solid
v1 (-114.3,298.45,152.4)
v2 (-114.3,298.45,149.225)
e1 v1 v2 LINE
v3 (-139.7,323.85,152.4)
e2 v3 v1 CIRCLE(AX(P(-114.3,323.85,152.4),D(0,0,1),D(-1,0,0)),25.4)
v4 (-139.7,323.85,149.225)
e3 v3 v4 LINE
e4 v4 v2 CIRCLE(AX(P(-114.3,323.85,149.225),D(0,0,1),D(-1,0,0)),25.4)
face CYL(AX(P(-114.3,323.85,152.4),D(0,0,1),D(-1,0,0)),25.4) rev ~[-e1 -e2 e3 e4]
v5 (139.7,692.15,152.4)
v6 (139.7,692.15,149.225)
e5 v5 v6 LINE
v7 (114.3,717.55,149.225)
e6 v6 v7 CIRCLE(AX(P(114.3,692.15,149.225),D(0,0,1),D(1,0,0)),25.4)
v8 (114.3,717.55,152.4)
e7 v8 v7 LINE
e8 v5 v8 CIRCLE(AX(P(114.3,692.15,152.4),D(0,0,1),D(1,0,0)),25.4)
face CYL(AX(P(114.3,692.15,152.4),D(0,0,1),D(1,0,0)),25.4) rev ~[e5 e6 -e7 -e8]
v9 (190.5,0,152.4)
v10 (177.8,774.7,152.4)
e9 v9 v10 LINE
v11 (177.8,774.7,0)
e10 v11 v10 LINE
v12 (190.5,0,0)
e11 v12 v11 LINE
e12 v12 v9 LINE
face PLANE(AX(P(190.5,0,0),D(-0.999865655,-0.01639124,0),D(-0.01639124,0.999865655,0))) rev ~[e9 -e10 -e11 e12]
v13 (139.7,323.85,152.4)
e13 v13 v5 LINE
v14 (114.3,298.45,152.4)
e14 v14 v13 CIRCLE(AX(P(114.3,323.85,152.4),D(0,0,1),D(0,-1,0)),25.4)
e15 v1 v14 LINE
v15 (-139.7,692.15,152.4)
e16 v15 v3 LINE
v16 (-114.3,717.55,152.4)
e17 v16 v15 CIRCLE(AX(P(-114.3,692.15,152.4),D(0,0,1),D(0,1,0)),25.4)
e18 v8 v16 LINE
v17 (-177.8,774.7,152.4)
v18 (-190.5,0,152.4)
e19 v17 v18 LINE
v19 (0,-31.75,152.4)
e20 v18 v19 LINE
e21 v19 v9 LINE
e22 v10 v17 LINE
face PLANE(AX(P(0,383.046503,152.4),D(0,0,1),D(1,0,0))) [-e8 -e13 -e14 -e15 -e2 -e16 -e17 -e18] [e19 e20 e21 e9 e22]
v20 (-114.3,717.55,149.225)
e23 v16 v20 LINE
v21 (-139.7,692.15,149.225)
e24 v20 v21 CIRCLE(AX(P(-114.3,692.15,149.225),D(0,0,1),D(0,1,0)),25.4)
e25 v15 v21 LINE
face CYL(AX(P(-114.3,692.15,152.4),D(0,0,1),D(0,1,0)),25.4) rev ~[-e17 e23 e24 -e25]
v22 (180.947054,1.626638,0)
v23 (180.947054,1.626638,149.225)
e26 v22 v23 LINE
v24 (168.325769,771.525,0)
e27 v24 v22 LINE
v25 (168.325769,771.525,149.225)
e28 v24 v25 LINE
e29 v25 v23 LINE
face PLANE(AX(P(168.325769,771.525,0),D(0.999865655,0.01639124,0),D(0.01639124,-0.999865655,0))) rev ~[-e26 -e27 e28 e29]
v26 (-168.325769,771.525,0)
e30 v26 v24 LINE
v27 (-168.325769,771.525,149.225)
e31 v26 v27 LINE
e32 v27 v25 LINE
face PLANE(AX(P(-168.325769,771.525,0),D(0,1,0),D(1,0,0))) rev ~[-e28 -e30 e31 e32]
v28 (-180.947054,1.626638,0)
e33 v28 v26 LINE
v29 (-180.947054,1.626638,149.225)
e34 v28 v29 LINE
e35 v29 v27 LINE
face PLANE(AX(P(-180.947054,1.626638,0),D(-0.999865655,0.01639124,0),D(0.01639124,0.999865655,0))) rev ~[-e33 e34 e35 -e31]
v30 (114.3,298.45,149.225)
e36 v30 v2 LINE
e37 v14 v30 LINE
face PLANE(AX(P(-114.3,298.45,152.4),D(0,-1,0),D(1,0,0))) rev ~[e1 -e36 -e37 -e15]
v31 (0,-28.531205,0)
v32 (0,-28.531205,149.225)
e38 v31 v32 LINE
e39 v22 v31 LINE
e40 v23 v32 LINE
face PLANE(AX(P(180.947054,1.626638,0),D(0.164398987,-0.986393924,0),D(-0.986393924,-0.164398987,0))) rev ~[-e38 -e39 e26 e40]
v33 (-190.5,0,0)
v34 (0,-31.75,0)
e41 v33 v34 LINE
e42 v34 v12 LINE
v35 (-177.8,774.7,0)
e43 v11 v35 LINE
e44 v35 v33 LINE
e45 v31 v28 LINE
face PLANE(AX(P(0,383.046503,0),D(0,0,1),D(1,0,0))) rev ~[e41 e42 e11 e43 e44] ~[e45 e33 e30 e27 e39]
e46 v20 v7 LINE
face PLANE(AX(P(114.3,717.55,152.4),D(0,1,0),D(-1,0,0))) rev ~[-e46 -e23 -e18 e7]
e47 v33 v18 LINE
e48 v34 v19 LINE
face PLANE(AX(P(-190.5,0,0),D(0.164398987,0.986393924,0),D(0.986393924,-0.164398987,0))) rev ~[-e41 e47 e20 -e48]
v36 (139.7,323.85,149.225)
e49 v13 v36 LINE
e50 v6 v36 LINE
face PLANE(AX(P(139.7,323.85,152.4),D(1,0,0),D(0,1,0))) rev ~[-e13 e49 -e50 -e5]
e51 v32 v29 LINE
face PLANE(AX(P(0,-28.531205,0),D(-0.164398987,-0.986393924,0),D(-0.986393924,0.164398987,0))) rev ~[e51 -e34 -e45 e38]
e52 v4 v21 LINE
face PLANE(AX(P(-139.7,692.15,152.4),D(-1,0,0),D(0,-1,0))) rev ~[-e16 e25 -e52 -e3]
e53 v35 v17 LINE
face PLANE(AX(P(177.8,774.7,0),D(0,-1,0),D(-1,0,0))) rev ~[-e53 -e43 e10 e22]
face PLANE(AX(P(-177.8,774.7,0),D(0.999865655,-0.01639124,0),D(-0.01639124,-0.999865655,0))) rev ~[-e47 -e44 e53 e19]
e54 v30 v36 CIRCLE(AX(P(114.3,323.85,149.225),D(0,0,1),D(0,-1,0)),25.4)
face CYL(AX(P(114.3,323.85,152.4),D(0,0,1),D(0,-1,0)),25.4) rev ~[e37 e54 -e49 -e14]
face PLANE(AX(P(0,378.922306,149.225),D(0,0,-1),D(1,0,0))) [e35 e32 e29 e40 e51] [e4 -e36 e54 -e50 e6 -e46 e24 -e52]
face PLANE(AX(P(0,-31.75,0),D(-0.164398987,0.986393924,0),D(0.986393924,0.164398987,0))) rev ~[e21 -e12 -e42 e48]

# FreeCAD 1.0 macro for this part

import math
import FreeCAD as App
import Part
import Sketcher
Q = App.Units.Quantity

doc = App.newDocument("Part")
body = doc.addObject("PartDesign::Body", "Body")

# Sketch on XY plane
sketch1 = body.newObject("Sketcher::SketchObject", "Sketch")
sketch1.AttachmentSupport = (doc.getObject("XY_Plane"), [""])
sketch1.MapMode = "FlatFace"
sketch1.addGeometry([
    Part.LineSegment(App.Vector(-178, 775, 0), App.Vector(-190, 0, 0)),  # 0
    Part.LineSegment(App.Vector(-190, 0, 0), App.Vector(0, -32, 0)),  # 1
    Part.LineSegment(App.Vector(0, -32, 0), App.Vector(190, 0, 0)),  # 2
    Part.LineSegment(App.Vector(190, 0, 0), App.Vector(178, 775, 0)),  # 3
    Part.LineSegment(App.Vector(178, 775, 0), App.Vector(-178, 775, 0)),  # 4
], False)
sketch1.addConstraint([
    Sketcher.Constraint("Coincident", 0, 2, 1, 1),
    Sketcher.Constraint("Coincident", 1, 2, 2, 1),
    Sketcher.Constraint("Coincident", 2, 2, 3, 1),
    Sketcher.Constraint("Coincident", 3, 2, 4, 1),
    Sketcher.Constraint("Coincident", 4, 2, 0, 1),
    Sketcher.Constraint("Horizontal", 4),
    Sketcher.Constraint("Symmetric", 0, 2, 2, 2, -1, 1),
    Sketcher.Constraint("PointOnObject", 0, 2, -1),
    Sketcher.Constraint("PointOnObject", 1, 2, -2),
    Sketcher.Constraint("Equal", 0, 3),
    Sketcher.Constraint("DistanceX", 4, 2, 4, 1, Q("14 in")),
    Sketcher.Constraint("DistanceX", 0, 2, 2, 2, Q("15 in")),
    Sketcher.Constraint("DistanceY", -1, 1, 3, 2, Q("30.5 in")),
    Sketcher.Constraint("DistanceY", 1, 2, -1, 1, Q("1.25 in")),
])
pad1 = body.newObject("PartDesign::Pad", "Pad")
pad1.Profile = sketch1
pad1.Length = Q("6 in")

# Sketch on XY plane
sketch2 = body.newObject("Sketcher::SketchObject", "Sketch001")
sketch2.AttachmentSupport = (doc.getObject("XY_Plane"), [""])
sketch2.MapMode = "FlatFace"
sketch2.addGeometry([
    Part.LineSegment(App.Vector(0, -29, 0), App.Vector(-181, 2, 0)),  # 0
    Part.LineSegment(App.Vector(-181, 2, 0), App.Vector(-168, 772, 0)),  # 1
    Part.LineSegment(App.Vector(-168, 772, 0), App.Vector(168, 772, 0)),  # 2
    Part.LineSegment(App.Vector(168, 772, 0), App.Vector(181, 2, 0)),  # 3
    Part.LineSegment(App.Vector(181, 2, 0), App.Vector(0, -29, 0)),  # 4
], False)
sketch2.addConstraint([
    Sketcher.Constraint("Coincident", 0, 2, 1, 1),
    Sketcher.Constraint("Coincident", 1, 2, 2, 1),
    Sketcher.Constraint("Coincident", 2, 2, 3, 1),
    Sketcher.Constraint("Coincident", 3, 2, 4, 1),
    Sketcher.Constraint("Coincident", 4, 2, 0, 1),
    Sketcher.Constraint("Horizontal", 2),
    Sketcher.Constraint("Symmetric", 0, 2, 3, 2, -2),
    Sketcher.Constraint("PointOnObject", 4, 2, -2),
    Sketcher.Constraint("Equal", 1, 3),
    Sketcher.Constraint("DistanceY", -1, 1, 1, 2, Q("30.375 in")),
    Sketcher.Constraint("DistanceX", 2, 1, 2, 2, Q("336.651539 mm")),
    Sketcher.Constraint("Distance", 1, Q("770.001809 mm")),
    Sketcher.Constraint("DistanceX", 0, 2, 3, 2, Q("361.894108 mm")),
    Sketcher.Constraint("Distance", 0, Q("183.442993 mm")),
])
pocket1 = body.newObject("PartDesign::Pocket", "Pocket")
pocket1.Profile = sketch2
pocket1.Length = Q("5.875 in")
pocket1.Reversed = True

# Sketch on XY plane
sketch3 = body.newObject("Sketcher::SketchObject", "Sketch002")
sketch3.AttachmentSupport = (doc.getObject("XY_Plane"), [""])
sketch3.MapMode = "FlatFace"
sketch3.AttachmentOffset = App.Placement(App.Vector(0, 0, 6 * 25.4), App.Rotation())
sketch3.addGeometry([
    Part.LineSegment(App.Vector(114, 718, 0), App.Vector(-114, 718, 0)),  # 0
    Part.ArcOfCircle(Part.Circle(App.Vector(-114, 692, 0), App.Vector(0, 0, 1), 25), math.radians(90), math.radians(180)),  # 1
    Part.LineSegment(App.Vector(-140, 692, 0), App.Vector(-140, 324, 0)),  # 2
    Part.ArcOfCircle(Part.Circle(App.Vector(-114, 324, 0), App.Vector(0, 0, 1), 25), math.radians(180), math.radians(270)),  # 3
    Part.LineSegment(App.Vector(-114, 298, 0), App.Vector(114, 298, 0)),  # 4
    Part.ArcOfCircle(Part.Circle(App.Vector(114, 324, 0), App.Vector(0, 0, 1), 25), math.radians(-90), math.radians(0)),  # 5
    Part.LineSegment(App.Vector(140, 324, 0), App.Vector(140, 692, 0)),  # 6
    Part.ArcOfCircle(Part.Circle(App.Vector(114, 692, 0), App.Vector(0, 0, 1), 25), math.radians(0), math.radians(90)),  # 7
], False)
sketch3.addConstraint([
    Sketcher.Constraint("Tangent", 0, 2, 1, 1),
    Sketcher.Constraint("Tangent", 1, 2, 2, 1),
    Sketcher.Constraint("Tangent", 2, 2, 3, 1),
    Sketcher.Constraint("Tangent", 3, 2, 4, 1),
    Sketcher.Constraint("Tangent", 4, 2, 5, 1),
    Sketcher.Constraint("Tangent", 5, 2, 6, 1),
    Sketcher.Constraint("Tangent", 6, 2, 7, 1),
    Sketcher.Constraint("Tangent", 7, 2, 0, 1),
    Sketcher.Constraint("Horizontal", 0),
    Sketcher.Constraint("Vertical", 2),
    Sketcher.Constraint("Horizontal", 4),
    Sketcher.Constraint("Vertical", 6),
    Sketcher.Constraint("Equal", 1, 3),
    Sketcher.Constraint("Equal", 3, 5),
    Sketcher.Constraint("Equal", 5, 7),
    Sketcher.Constraint("Radius", 1, Q("1 in")),
    Sketcher.Constraint("DistanceX", 0, 2, 0, 1, Q("9 in")),
    Sketcher.Constraint("DistanceY", 2, 2, 2, 1, Q("14.5 in")),
    Sketcher.Constraint("DistanceX", 1, 3, -1, 1, Q("4.5 in")),
    Sketcher.Constraint("DistanceY", -1, 1, 1, 3, Q("27.25 in")),
])
pocket2 = body.newObject("PartDesign::Pocket", "Pocket001")
pocket2.Profile = sketch3
pocket2.Length = Q("1 in")

doc.recompute()
